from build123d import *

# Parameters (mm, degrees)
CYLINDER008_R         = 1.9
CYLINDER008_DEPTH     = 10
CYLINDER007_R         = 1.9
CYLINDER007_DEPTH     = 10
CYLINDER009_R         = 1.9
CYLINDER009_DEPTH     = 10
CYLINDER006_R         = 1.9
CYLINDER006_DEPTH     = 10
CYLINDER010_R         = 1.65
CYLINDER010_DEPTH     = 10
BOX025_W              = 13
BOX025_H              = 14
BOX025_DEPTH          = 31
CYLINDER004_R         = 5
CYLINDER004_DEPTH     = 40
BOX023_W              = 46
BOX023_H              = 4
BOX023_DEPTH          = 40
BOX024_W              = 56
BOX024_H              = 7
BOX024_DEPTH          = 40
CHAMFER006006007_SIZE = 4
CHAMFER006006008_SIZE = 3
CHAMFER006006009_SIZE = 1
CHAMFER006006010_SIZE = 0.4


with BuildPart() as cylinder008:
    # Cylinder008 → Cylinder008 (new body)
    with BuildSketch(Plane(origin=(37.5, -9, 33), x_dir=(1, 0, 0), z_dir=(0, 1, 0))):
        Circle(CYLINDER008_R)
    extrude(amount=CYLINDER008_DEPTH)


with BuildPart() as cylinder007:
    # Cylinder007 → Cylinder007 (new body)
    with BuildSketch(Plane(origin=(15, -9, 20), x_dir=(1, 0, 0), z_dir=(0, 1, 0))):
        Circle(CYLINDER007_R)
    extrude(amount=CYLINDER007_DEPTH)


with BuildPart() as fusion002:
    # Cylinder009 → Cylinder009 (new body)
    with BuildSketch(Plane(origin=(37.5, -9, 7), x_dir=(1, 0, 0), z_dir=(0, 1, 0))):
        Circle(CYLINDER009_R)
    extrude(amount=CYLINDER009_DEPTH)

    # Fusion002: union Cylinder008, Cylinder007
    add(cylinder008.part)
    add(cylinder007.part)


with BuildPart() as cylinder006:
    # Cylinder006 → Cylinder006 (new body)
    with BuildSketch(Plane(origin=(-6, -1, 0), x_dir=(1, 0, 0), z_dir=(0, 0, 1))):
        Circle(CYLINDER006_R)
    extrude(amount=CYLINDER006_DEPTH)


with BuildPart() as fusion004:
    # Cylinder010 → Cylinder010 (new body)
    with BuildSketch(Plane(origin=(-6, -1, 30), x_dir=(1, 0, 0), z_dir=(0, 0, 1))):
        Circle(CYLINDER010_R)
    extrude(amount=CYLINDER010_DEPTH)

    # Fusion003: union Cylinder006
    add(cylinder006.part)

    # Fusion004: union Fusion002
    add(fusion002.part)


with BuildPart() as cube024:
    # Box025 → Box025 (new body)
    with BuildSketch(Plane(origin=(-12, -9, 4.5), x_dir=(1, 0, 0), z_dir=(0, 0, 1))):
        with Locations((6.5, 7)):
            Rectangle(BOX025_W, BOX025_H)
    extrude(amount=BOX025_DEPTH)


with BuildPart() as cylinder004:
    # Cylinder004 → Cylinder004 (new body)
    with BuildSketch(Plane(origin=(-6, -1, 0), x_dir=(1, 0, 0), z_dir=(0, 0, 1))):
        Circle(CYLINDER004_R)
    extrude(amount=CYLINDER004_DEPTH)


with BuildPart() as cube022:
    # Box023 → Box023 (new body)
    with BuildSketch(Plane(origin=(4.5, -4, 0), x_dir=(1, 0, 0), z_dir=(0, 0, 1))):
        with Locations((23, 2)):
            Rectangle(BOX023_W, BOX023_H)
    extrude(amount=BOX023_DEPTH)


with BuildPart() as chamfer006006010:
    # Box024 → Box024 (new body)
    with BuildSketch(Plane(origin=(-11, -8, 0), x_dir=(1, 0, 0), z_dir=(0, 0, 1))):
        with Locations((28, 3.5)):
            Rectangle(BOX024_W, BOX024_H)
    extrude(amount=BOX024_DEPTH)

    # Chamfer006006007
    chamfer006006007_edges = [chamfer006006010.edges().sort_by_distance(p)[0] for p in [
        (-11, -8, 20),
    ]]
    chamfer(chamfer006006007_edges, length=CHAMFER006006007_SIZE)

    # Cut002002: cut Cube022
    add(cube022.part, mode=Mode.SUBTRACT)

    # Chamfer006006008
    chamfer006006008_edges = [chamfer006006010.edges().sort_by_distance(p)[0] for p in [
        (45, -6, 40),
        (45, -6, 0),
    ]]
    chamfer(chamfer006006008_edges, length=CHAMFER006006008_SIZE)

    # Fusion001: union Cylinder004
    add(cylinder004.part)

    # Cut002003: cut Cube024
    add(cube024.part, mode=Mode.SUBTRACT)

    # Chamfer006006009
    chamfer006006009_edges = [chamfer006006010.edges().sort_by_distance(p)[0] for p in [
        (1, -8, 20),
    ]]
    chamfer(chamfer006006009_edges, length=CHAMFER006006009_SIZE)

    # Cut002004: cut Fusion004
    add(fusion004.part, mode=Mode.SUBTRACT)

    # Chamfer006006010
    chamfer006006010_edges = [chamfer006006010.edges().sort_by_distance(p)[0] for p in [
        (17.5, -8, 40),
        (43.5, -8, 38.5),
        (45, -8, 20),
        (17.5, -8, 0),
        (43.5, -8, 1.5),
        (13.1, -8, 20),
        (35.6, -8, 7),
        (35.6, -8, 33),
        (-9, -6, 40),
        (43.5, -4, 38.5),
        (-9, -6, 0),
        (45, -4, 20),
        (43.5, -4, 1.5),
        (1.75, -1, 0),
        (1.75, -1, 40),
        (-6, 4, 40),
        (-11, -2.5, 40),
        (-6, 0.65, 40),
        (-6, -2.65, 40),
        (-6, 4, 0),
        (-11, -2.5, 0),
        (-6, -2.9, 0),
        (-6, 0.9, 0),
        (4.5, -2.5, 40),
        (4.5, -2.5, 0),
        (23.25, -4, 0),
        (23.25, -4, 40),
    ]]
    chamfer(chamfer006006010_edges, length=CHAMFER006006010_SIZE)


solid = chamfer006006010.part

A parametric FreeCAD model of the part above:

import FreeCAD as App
import Part
import Sketcher


def edges_at(feature, points):
    """Names of the edges that pass closest to the given points."""
    edges = feature.Shape.Edges
    near = lambda p: min(range(len(edges)), key=lambda i: edges[i].distToShape(Part.Vertex(*p))[0])
    return sorted({f"Edge{near(p) + 1}" for p in points})

doc = App.newDocument("Part")
body = doc.addObject("PartDesign::Body", "Body")

# Sketch on XZ plane
sketch1 = doc.addObject("Sketcher::SketchObject", "Sketch")
body.addObject(sketch1)
sketch1.AttachmentSupport = (doc.XZ_Plane, [""])
sketch1.MapMode = "FlatFace"
sketch1.AttachmentOffset = App.Placement(App.Vector(0, 0, 9), App.Rotation())
sketch1.addGeometry(Part.Circle(App.Vector(37.5, 33, 0), App.Vector(0, 0, 1), 1.9), False)
sketch1.addConstraint(Sketcher.Constraint("Diameter", 0, 3.8))
sketch1.addConstraint(Sketcher.Constraint("DistanceY", -1, 1, 0, 3, 33.0))
sketch1.addConstraint(Sketcher.Constraint("DistanceX", -1, 1, 0, 3, 37.5))
pad1 = doc.addObject("PartDesign::Pad", "Pad")
body.addObject(pad1)
pad1.Profile = sketch1
pad1.Length = 10
pad1.Reversed = True
body2 = doc.addObject("PartDesign::Body", "Body001")

# Sketch on XZ plane
sketch2 = doc.addObject("Sketcher::SketchObject", "Sketch001")
body2.addObject(sketch2)
sketch2.AttachmentSupport = (doc.getObject("XZ_Plane001"), [""])
sketch2.MapMode = "FlatFace"
sketch2.AttachmentOffset = App.Placement(App.Vector(0, 0, 9), App.Rotation())
sketch2.addGeometry(Part.Circle(App.Vector(15, 20, 0), App.Vector(0, 0, 1), 1.9), False)
sketch2.addConstraint(Sketcher.Constraint("Diameter", 0, 3.8))
sketch2.addConstraint(Sketcher.Constraint("DistanceX", -1, 1, 0, 3, 15.0))
sketch2.addConstraint(Sketcher.Constraint("DistanceY", -1, 1, 0, 3, 20.0))
pad2 = doc.addObject("PartDesign::Pad", "Pad001")
body2.addObject(pad2)
pad2.Profile = sketch2
pad2.Length = 10
pad2.Reversed = True
body3 = doc.addObject("PartDesign::Body", "Body002")
body3.AllowCompound = True

# Sketch on XZ plane
sketch3 = doc.addObject("Sketcher::SketchObject", "Sketch002")
body3.addObject(sketch3)
sketch3.AttachmentSupport = (doc.getObject("XZ_Plane002"), [""])
sketch3.MapMode = "FlatFace"
sketch3.AttachmentOffset = App.Placement(App.Vector(0, 0, 9), App.Rotation())
sketch3.addGeometry(Part.Circle(App.Vector(37.5, 7, 0), App.Vector(0, 0, 1), 1.9), False)
sketch3.addConstraint(Sketcher.Constraint("Diameter", 0, 3.8))
sketch3.addConstraint(Sketcher.Constraint("DistanceY", -1, 1, 0, 3, 7.0))
sketch3.addConstraint(Sketcher.Constraint("DistanceX", -1, 1, 0, 3, 37.5))
pad3 = doc.addObject("PartDesign::Pad", "Pad002")
body3.addObject(pad3)
pad3.Profile = sketch3
pad3.Length = 10
pad3.Reversed = True
doc.recompute()

boolean = doc.addObject("PartDesign::Boolean", "Boolean")
body3.addObject(boolean)
boolean.Type = "Fuse"
boolean.addObjects([body])
doc.recompute()

boolean2 = doc.addObject("PartDesign::Boolean", "Boolean001")
body3.addObject(boolean2)
boolean2.Type = "Fuse"
boolean2.addObjects([body2])
body4 = doc.addObject("PartDesign::Body", "Body003")

# Sketch on XY plane
sketch4 = doc.addObject("Sketcher::SketchObject", "Sketch003")
body4.addObject(sketch4)
sketch4.AttachmentSupport = (doc.getObject("XY_Plane003"), [""])
sketch4.MapMode = "FlatFace"
sketch4.addGeometry(Part.Circle(App.Vector(-6, -1, 0), App.Vector(0, 0, 1), 1.9), False)
sketch4.addConstraint(Sketcher.Constraint("Diameter", 0, 3.8))
sketch4.addConstraint(Sketcher.Constraint("DistanceX", 0, 3, -1, 1, 6.0))
sketch4.addConstraint(Sketcher.Constraint("DistanceY", 0, 3, -1, 1, 1.0))
pad4 = doc.addObject("PartDesign::Pad", "Pad003")
body4.addObject(pad4)
pad4.Profile = sketch4
pad4.Length = 10
body5 = doc.addObject("PartDesign::Body", "Body004")
body5.AllowCompound = True

# Sketch on XY plane
sketch5 = doc.addObject("Sketcher::SketchObject", "Sketch004")
body5.addObject(sketch5)
sketch5.AttachmentSupport = (doc.getObject("XY_Plane004"), [""])
sketch5.MapMode = "FlatFace"
sketch5.AttachmentOffset = App.Placement(App.Vector(0, 0, 30), App.Rotation())
sketch5.addGeometry(Part.Circle(App.Vector(-6, -1, 0), App.Vector(0, 0, 1), 1.6), False)
sketch5.addConstraint(Sketcher.Constraint("Diameter", 0, 3.3))
sketch5.addConstraint(Sketcher.Constraint("DistanceX", 0, 3, -1, 1, 6.0))
sketch5.addConstraint(Sketcher.Constraint("DistanceY", 0, 3, -1, 1, 1.0))
pad5 = doc.addObject("PartDesign::Pad", "Pad004")
body5.addObject(pad5)
pad5.Profile = sketch5
pad5.Length = 10
doc.recompute()

boolean3 = doc.addObject("PartDesign::Boolean", "Boolean002")
body5.addObject(boolean3)
boolean3.Type = "Fuse"
boolean3.addObjects([body4])
doc.recompute()

boolean4 = doc.addObject("PartDesign::Boolean", "Boolean003")
body5.addObject(boolean4)
boolean4.Type = "Fuse"
boolean4.addObjects([body3])
body6 = doc.addObject("PartDesign::Body", "Body005")

# Sketch on XY plane
sketch6 = doc.addObject("Sketcher::SketchObject", "Sketch005")
body6.addObject(sketch6)
sketch6.AttachmentSupport = (doc.getObject("XY_Plane005"), [""])
sketch6.MapMode = "FlatFace"
sketch6.AttachmentOffset = App.Placement(App.Vector(0, 0, 4.5), App.Rotation())
sketch6.addGeometry(Part.LineSegment(App.Vector(-12, 5, 0), App.Vector(-12, -9, 0)), False)
sketch6.addGeometry(Part.LineSegment(App.Vector(-12, -9, 0), App.Vector(1, -9, 0)), False)
sketch6.addGeometry(Part.LineSegment(App.Vector(1, -9, 0), App.Vector(1, 5, 0)), False)
sketch6.addGeometry(Part.LineSegment(App.Vector(1, 5, 0), App.Vector(-12, 5, 0)), False)
sketch6.addConstraint(Sketcher.Constraint("Coincident", 0, 2, 1, 1))
sketch6.addConstraint(Sketcher.Constraint("Coincident", 1, 2, 2, 1))
sketch6.addConstraint(Sketcher.Constraint("Coincident", 2, 2, 3, 1))
sketch6.addConstraint(Sketcher.Constraint("Coincident", 3, 2, 0, 1))
sketch6.addConstraint(Sketcher.Constraint("Vertical", 0))
sketch6.addConstraint(Sketcher.Constraint("Horizontal", 1))
sketch6.addConstraint(Sketcher.Constraint("Vertical", 2))
sketch6.addConstraint(Sketcher.Constraint("Horizontal", 3))
sketch6.addConstraint(Sketcher.Constraint("DistanceX", 1, 1, 1, 2, 13.0))
sketch6.addConstraint(Sketcher.Constraint("DistanceY", 0, 2, 0, 1, 14.0))
sketch6.addConstraint(Sketcher.Constraint("DistanceX", 0, 2, -1, 1, 12.0))
sketch6.addConstraint(Sketcher.Constraint("DistanceY", 0, 2, -1, 1, 9.0))
pad6 = doc.addObject("PartDesign::Pad", "Pad005")
body6.addObject(pad6)
pad6.Profile = sketch6
pad6.Length = 31
body7 = doc.addObject("PartDesign::Body", "Body006")

# Sketch on XY plane
sketch7 = doc.addObject("Sketcher::SketchObject", "Sketch006")
body7.addObject(sketch7)
sketch7.AttachmentSupport = (doc.getObject("XY_Plane006"), [""])
sketch7.MapMode = "FlatFace"
sketch7.addGeometry(Part.Circle(App.Vector(-6, -1, 0), App.Vector(0, 0, 1), 5), False)
sketch7.addConstraint(Sketcher.Constraint("Diameter", 0, 10.0))
sketch7.addConstraint(Sketcher.Constraint("DistanceX", 0, 3, -1, 1, 6.0))
sketch7.addConstraint(Sketcher.Constraint("DistanceY", 0, 3, -1, 1, 1.0))
pad7 = doc.addObject("PartDesign::Pad", "Pad006")
body7.addObject(pad7)
pad7.Profile = sketch7
pad7.Length = 40
body8 = doc.addObject("PartDesign::Body", "Body007")

# Sketch on XY plane
sketch8 = doc.addObject("Sketcher::SketchObject", "Sketch007")
body8.addObject(sketch8)
sketch8.AttachmentSupport = (doc.getObject("XY_Plane007"), [""])
sketch8.MapMode = "FlatFace"
sketch8.addGeometry(Part.LineSegment(App.Vector(4.5, 0, 0), App.Vector(4.5, -4, 0)), False)
sketch8.addGeometry(Part.LineSegment(App.Vector(4.5, -4, 0), App.Vector(50.5, -4, 0)), False)
sketch8.addGeometry(Part.LineSegment(App.Vector(50.5, -4, 0), App.Vector(50.5, 0, 0)), False)
sketch8.addGeometry(Part.LineSegment(App.Vector(50.5, 0, 0), App.Vector(4.5, 0, 0)), False)
sketch8.addConstraint(Sketcher.Constraint("Coincident", 0, 2, 1, 1))
sketch8.addConstraint(Sketcher.Constraint("Coincident", 1, 2, 2, 1))
sketch8.addConstraint(Sketcher.Constraint("Coincident", 2, 2, 3, 1))
sketch8.addConstraint(Sketcher.Constraint("Coincident", 3, 2, 0, 1))
sketch8.addConstraint(Sketcher.Constraint("Vertical", 0))
sketch8.addConstraint(Sketcher.Constraint("Horizontal", 1))
sketch8.addConstraint(Sketcher.Constraint("Vertical", 2))
sketch8.addConstraint(Sketcher.Constraint("Horizontal", 3))
sketch8.addConstraint(Sketcher.Constraint("PointOnObject", 2, 2, -1))
sketch8.addConstraint(Sketcher.Constraint("DistanceX", 1, 1, 1, 2, 46.0))
sketch8.addConstraint(Sketcher.Constraint("DistanceY", 0, 2, 0, 1, 4.0))
sketch8.addConstraint(Sketcher.Constraint("DistanceX", -1, 1, 0, 2, 4.5))
pad8 = doc.addObject("PartDesign::Pad", "Pad007")
body8.addObject(pad8)
pad8.Profile = sketch8
pad8.Length = 40
body9 = doc.addObject("PartDesign::Body", "Body008")

# Sketch on XY plane
sketch9 = doc.addObject("Sketcher::SketchObject", "Sketch008")
body9.addObject(sketch9)
sketch9.AttachmentSupport = (doc.getObject("XY_Plane008"), [""])
sketch9.MapMode = "FlatFace"
sketch9.addGeometry(Part.LineSegment(App.Vector(-11, -1, 0), App.Vector(-11, -8, 0)), False)
sketch9.addGeometry(Part.LineSegment(App.Vector(-11, -8, 0), App.Vector(45, -8, 0)), False)
sketch9.addGeometry(Part.LineSegment(App.Vector(45, -8, 0), App.Vector(45, -1, 0)), False)
sketch9.addGeometry(Part.LineSegment(App.Vector(45, -1, 0), App.Vector(-11, -1, 0)), False)
sketch9.addConstraint(Sketcher.Constraint("Coincident", 0, 2, 1, 1))
sketch9.addConstraint(Sketcher.Constraint("Coincident", 1, 2, 2, 1))
sketch9.addConstraint(Sketcher.Constraint("Coincident", 2, 2, 3, 1))
sketch9.addConstraint(Sketcher.Constraint("Coincident", 3, 2, 0, 1))
sketch9.addConstraint(Sketcher.Constraint("Vertical", 0))
sketch9.addConstraint(Sketcher.Constraint("Horizontal", 1))
sketch9.addConstraint(Sketcher.Constraint("Vertical", 2))
sketch9.addConstraint(Sketcher.Constraint("Horizontal", 3))
sketch9.addConstraint(Sketcher.Constraint("DistanceX", 1, 1, 1, 2, 56.0))
sketch9.addConstraint(Sketcher.Constraint("DistanceY", 0, 2, 0, 1, 7.0))
sketch9.addConstraint(Sketcher.Constraint("DistanceX", 0, 2, -1, 1, 11.0))
sketch9.addConstraint(Sketcher.Constraint("DistanceY", 0, 2, -1, 1, 8.0))
pad9 = doc.addObject("PartDesign::Pad", "Pad008")
body9.addObject(pad9)
pad9.Profile = sketch9
pad9.Length = 40
doc.recompute()

chamfer = doc.addObject("PartDesign::Chamfer", "Chamfer")
body9.addObject(chamfer)
chamfer.Base = (pad9, edges_at(pad9, [(-11, -8, 20)]))
chamfer.Size = 4
doc.recompute()

boolean5 = doc.addObject("PartDesign::Boolean", "Boolean004")
body9.addObject(boolean5)
boolean5.Type = "Cut"
boolean5.addObjects([body8])
doc.recompute()

chamfer2 = doc.addObject("PartDesign::Chamfer", "Chamfer001")
body9.addObject(chamfer2)
chamfer2.Base = (boolean5, edges_at(boolean5, [(45, -6, 40), (45, -6, 0)]))
chamfer2.Size = 3
doc.recompute()

boolean6 = doc.addObject("PartDesign::Boolean", "Boolean005")
body9.addObject(boolean6)
boolean6.Type = "Fuse"
boolean6.addObjects([body7])
doc.recompute()

boolean7 = doc.addObject("PartDesign::Boolean", "Boolean006")
body9.addObject(boolean7)
boolean7.Type = "Cut"
boolean7.addObjects([body6])
doc.recompute()

chamfer3 = doc.addObject("PartDesign::Chamfer", "Chamfer002")
body9.addObject(chamfer3)
chamfer3.Base = (boolean7, edges_at(boolean7, [(1, -8, 20)]))
chamfer3.Size = 1
doc.recompute()

boolean8 = doc.addObject("PartDesign::Boolean", "Boolean007")
body9.addObject(boolean8)
boolean8.Type = "Cut"
boolean8.addObjects([body5])
doc.recompute()

chamfer4 = doc.addObject("PartDesign::Chamfer", "Chamfer003")
body9.addObject(chamfer4)
chamfer4.Base = (boolean8, edges_at(boolean8, [
    (17.5, -8, 40),
    (43.5, -8, 38.5),
    (45, -8, 20),
    (17.5, -8, 0),
    (43.5, -8, 1.5),
    (13.1, -8, 20),
    (35.6, -8, 7),
    (35.6, -8, 33),
    (-9, -6, 40),
    (43.5, -4, 38.5),
    (-9, -6, 0),
    (45, -4, 20),
    (43.5, -4, 1.5),
    (1.75, -1, 0),
    (1.75, -1, 40),
    (-6, 4, 40),
    (-11, -2.5, 40),
    (-7.65, -1, 40),
    (-7.65, -1, 40),
    (-6, 4, 0),
    (-11, -2.5, 0),
    (-7.9, -1, 0),
    (-7.9, -1, 0),
    (4.5, -2.5, 40),
    (4.5, -2.5, 0),
    (23.25, -4, 0),
    (23.25, -4, 40),
]))
chamfer4.Size = 0.4

doc.recompute()
